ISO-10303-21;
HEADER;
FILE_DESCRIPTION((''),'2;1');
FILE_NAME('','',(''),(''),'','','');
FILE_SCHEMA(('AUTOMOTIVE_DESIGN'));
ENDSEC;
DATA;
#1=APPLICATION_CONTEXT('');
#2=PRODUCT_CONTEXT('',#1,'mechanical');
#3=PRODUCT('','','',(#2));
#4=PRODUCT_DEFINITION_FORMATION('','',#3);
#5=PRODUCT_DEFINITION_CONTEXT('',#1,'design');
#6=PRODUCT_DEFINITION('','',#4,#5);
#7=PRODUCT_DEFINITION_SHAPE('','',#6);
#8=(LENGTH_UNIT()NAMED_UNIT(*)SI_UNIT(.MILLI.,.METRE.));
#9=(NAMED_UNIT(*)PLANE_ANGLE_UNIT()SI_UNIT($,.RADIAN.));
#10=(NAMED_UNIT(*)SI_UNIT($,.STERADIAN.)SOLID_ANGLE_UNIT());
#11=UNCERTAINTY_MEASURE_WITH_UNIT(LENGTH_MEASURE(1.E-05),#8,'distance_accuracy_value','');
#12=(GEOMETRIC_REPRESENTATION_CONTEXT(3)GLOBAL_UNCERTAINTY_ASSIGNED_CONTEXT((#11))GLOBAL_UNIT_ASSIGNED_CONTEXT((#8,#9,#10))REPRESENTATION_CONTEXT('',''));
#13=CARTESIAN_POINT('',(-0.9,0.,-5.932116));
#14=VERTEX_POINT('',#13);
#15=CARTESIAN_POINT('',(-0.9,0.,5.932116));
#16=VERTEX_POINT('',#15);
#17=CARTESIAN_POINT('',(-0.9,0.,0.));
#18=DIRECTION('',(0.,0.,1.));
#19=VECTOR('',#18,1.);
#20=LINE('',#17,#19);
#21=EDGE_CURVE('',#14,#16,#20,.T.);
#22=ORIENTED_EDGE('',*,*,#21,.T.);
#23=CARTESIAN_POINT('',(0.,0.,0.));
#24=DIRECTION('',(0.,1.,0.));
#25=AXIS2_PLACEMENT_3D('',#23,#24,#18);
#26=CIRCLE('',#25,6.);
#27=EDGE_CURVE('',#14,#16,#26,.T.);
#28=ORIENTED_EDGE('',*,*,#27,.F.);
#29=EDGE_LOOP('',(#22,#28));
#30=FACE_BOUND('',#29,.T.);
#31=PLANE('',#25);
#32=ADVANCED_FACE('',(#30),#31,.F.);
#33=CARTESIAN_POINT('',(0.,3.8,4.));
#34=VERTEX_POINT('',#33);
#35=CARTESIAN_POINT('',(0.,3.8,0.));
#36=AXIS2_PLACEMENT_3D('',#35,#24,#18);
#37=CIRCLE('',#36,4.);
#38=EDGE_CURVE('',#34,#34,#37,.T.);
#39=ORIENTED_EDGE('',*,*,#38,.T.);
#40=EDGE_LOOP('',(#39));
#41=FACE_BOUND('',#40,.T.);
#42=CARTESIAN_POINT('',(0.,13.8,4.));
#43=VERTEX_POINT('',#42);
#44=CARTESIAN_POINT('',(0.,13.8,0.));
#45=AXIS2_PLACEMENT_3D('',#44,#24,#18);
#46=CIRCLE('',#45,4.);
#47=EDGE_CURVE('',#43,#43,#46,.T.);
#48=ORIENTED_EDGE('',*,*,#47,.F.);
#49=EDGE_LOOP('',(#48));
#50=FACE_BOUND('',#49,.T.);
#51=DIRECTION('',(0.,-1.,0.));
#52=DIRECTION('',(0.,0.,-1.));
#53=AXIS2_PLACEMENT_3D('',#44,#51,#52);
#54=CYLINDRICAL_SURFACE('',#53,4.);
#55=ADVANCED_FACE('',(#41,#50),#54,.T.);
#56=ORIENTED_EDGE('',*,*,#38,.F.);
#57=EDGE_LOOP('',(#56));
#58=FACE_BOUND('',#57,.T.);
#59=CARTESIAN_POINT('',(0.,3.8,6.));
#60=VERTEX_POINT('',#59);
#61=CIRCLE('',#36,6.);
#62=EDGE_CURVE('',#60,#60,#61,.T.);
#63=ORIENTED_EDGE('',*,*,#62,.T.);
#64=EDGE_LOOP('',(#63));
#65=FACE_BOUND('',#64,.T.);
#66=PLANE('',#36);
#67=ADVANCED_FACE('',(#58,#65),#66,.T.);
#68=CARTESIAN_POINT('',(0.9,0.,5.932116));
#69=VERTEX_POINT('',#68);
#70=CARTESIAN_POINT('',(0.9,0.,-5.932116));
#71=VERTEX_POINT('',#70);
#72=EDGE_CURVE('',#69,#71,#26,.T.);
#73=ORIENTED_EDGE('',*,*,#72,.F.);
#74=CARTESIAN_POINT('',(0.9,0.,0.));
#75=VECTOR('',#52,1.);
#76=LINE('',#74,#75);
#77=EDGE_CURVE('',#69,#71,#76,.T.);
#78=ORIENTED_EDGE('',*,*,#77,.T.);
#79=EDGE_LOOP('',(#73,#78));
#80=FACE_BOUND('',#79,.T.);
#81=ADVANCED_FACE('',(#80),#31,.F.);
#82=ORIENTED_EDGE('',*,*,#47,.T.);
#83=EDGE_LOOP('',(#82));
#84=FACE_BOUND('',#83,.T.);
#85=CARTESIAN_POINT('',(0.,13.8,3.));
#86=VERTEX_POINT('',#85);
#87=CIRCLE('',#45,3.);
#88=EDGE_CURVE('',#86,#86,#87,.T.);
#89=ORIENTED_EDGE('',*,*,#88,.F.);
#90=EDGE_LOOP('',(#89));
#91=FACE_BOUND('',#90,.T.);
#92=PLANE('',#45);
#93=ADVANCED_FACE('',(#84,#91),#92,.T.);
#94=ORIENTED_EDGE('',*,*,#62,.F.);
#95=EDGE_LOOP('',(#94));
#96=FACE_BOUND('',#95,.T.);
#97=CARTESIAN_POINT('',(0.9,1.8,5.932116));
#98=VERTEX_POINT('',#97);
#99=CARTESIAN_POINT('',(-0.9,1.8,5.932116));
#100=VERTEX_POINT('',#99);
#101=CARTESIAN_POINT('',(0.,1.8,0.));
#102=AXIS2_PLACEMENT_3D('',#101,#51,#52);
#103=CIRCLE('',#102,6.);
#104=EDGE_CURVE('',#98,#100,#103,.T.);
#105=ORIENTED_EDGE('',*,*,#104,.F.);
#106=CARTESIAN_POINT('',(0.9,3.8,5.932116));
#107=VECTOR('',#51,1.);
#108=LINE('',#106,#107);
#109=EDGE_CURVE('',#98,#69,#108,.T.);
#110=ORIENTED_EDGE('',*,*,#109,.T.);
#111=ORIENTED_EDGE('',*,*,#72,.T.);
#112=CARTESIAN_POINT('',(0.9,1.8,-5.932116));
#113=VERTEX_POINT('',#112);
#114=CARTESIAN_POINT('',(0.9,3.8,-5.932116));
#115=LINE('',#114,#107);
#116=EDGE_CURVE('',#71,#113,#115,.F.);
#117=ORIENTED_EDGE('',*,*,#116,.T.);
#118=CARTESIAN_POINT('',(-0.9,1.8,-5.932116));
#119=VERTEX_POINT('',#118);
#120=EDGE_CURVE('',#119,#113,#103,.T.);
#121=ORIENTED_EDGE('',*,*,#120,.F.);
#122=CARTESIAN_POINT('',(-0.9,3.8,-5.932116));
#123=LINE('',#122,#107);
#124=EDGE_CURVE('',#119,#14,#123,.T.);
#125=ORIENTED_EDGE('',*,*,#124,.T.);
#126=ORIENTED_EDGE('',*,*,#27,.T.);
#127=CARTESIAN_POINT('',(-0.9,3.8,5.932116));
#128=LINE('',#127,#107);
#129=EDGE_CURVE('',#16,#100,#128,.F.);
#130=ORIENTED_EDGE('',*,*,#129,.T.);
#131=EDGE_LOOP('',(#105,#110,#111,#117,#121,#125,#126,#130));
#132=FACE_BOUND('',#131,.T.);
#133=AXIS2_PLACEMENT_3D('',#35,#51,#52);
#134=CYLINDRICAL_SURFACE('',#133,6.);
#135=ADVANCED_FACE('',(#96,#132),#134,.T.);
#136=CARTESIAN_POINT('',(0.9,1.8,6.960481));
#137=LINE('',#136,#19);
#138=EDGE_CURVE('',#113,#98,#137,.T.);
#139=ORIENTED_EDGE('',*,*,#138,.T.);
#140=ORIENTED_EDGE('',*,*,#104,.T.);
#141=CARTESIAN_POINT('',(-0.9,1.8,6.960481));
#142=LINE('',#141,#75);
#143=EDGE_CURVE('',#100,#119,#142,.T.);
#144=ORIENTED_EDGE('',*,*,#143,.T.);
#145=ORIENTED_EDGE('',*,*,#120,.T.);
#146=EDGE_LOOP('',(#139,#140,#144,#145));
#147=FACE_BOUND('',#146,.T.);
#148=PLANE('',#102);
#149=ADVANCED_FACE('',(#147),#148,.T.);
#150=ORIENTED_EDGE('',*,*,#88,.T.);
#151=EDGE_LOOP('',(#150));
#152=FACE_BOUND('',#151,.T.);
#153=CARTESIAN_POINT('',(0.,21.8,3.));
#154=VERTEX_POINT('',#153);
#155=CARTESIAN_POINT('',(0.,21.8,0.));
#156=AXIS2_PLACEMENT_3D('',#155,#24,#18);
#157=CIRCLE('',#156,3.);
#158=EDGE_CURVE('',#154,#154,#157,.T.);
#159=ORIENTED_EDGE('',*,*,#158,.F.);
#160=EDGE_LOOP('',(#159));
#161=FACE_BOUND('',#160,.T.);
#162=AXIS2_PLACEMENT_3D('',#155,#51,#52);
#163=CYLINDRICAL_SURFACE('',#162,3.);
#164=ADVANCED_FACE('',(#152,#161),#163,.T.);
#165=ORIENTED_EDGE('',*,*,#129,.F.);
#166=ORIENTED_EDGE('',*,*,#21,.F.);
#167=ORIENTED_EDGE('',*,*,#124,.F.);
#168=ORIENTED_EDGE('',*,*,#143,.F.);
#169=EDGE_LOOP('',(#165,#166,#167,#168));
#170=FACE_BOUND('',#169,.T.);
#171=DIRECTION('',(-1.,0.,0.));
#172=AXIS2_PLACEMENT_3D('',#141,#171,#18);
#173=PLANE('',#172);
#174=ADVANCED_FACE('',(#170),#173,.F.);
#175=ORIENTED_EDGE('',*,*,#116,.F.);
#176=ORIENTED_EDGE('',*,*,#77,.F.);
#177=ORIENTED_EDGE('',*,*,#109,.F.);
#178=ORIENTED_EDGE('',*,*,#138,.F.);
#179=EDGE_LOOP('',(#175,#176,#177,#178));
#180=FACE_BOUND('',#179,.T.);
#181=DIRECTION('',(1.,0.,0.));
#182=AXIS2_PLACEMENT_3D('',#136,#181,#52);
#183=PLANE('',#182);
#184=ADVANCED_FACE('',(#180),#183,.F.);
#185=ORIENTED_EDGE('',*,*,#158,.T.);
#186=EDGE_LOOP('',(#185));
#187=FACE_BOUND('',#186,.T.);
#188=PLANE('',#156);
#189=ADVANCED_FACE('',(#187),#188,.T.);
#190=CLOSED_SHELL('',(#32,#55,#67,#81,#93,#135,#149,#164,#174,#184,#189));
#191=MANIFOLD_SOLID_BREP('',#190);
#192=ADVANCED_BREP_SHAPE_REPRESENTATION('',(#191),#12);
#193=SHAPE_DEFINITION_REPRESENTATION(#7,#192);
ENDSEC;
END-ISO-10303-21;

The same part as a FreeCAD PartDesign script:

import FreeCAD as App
import Part
import Sketcher
from FreeCAD import Vector
Q = App.Units.Quantity

doc = App.newDocument("Part")
body = doc.addObject("PartDesign::Body", "Body")

# Sketch on XZ plane
sketch1 = body.newObject("Sketcher::SketchObject", "Sketch")
sketch1.AttachmentSupport = (doc.getObject("XZ_Plane"), [""])
sketch1.MapMode = "FlatFace"
sketch1.addGeometry(Part.Circle(Vector(0, 0, 0), Vector(0, 0, 1), 6), False)
sketch1.addConstraint(Sketcher.Constraint("Coincident", 0, 3, -1, 1))
sketch1.addConstraint(Sketcher.Constraint("Diameter", 0, Q("12 mm")))
pad1 = body.newObject("PartDesign::Pad", "Pad")
pad1.Profile = sketch1
pad1.Length = 3.8
pad1.Reversed = True

# Sketch on XZ plane
sketch2 = body.newObject("Sketcher::SketchObject", "Sketch001")
sketch2.AttachmentSupport = (doc.getObject("XZ_Plane"), [""])
sketch2.MapMode = "FlatFace"
sketch2.AttachmentOffset = App.Placement(Vector(0, 0, -3.8), App.Rotation())
sketch2.addGeometry(Part.Circle(Vector(0, 0, 0), Vector(0, 0, 1), 4), False)
sketch2.addConstraint(Sketcher.Constraint("Coincident", 0, 3, -1, 1))
sketch2.addConstraint(Sketcher.Constraint("Diameter", 0, Q("8 mm")))
pad2 = body.newObject("PartDesign::Pad", "Pad001")
pad2.Profile = sketch2
pad2.Length = 10
pad2.Reversed = True

# Sketch on XZ plane
sketch3 = body.newObject("Sketcher::SketchObject", "Sketch002")
sketch3.AttachmentSupport = (doc.getObject("XZ_Plane"), [""])
sketch3.MapMode = "FlatFace"
sketch3.AttachmentOffset = App.Placement(Vector(0, 0, -13.8), App.Rotation())
sketch3.addGeometry(Part.Circle(Vector(0, 0, 0), Vector(0, 0, 1), 3), False)
sketch3.addConstraint(Sketcher.Constraint("Coincident", 0, 3, -1, 1))
sketch3.addConstraint(Sketcher.Constraint("Diameter", 0, Q("6 mm")))
pad3 = body.newObject("PartDesign::Pad", "Pad002")
pad3.Profile = sketch3
pad3.Length = 8
pad3.Reversed = True

# Sketch on XZ plane
sketch4 = body.newObject("Sketcher::SketchObject", "Sketch003")
sketch4.AttachmentSupport = (doc.getObject("XZ_Plane"), [""])
sketch4.MapMode = "FlatFace"
sketch4.addGeometry(Part.LineSegment(Vector(-0.9, 7, 0), Vector(-0.9, -7, 0)), False)
sketch4.addGeometry(Part.LineSegment(Vector(-0.9, -7, 0), Vector(0.9, -7, 0)), False)
sketch4.addGeometry(Part.LineSegment(Vector(0.9, -7, 0), Vector(0.9, 7, 0)), False)
sketch4.addGeometry(Part.LineSegment(Vector(0.9, 7, 0), Vector(-0.9, 7, 0)), False)
sketch4.addConstraint(Sketcher.Constraint("Coincident", 0, 2, 1, 1))
sketch4.addConstraint(Sketcher.Constraint("Coincident", 1, 2, 2, 1))
sketch4.addConstraint(Sketcher.Constraint("Coincident", 2, 2, 3, 1))
sketch4.addConstraint(Sketcher.Constraint("Coincident", 3, 2, 0, 1))
sketch4.addConstraint(Sketcher.Constraint("Vertical", 0))
sketch4.addConstraint(Sketcher.Constraint("Horizontal", 1))
sketch4.addConstraint(Sketcher.Constraint("Vertical", 2))
sketch4.addConstraint(Sketcher.Constraint("Horizontal", 3))
sketch4.addConstraint(Sketcher.Constraint("Symmetric", 0, 2, 2, 2, -1, 1))
sketch4.addConstraint(Sketcher.Constraint("DistanceX", 1, 1, 1, 2, Q("1.8 mm")))
sketch4.addConstraint(Sketcher.Constraint("DistanceY", 0, 2, 0, 1, Q("13.920963 mm")))
pocket1 = body.newObject("PartDesign::Pocket", "Pocket")
pocket1.Profile = sketch4
pocket1.Length = 1.8

doc.recompute()
